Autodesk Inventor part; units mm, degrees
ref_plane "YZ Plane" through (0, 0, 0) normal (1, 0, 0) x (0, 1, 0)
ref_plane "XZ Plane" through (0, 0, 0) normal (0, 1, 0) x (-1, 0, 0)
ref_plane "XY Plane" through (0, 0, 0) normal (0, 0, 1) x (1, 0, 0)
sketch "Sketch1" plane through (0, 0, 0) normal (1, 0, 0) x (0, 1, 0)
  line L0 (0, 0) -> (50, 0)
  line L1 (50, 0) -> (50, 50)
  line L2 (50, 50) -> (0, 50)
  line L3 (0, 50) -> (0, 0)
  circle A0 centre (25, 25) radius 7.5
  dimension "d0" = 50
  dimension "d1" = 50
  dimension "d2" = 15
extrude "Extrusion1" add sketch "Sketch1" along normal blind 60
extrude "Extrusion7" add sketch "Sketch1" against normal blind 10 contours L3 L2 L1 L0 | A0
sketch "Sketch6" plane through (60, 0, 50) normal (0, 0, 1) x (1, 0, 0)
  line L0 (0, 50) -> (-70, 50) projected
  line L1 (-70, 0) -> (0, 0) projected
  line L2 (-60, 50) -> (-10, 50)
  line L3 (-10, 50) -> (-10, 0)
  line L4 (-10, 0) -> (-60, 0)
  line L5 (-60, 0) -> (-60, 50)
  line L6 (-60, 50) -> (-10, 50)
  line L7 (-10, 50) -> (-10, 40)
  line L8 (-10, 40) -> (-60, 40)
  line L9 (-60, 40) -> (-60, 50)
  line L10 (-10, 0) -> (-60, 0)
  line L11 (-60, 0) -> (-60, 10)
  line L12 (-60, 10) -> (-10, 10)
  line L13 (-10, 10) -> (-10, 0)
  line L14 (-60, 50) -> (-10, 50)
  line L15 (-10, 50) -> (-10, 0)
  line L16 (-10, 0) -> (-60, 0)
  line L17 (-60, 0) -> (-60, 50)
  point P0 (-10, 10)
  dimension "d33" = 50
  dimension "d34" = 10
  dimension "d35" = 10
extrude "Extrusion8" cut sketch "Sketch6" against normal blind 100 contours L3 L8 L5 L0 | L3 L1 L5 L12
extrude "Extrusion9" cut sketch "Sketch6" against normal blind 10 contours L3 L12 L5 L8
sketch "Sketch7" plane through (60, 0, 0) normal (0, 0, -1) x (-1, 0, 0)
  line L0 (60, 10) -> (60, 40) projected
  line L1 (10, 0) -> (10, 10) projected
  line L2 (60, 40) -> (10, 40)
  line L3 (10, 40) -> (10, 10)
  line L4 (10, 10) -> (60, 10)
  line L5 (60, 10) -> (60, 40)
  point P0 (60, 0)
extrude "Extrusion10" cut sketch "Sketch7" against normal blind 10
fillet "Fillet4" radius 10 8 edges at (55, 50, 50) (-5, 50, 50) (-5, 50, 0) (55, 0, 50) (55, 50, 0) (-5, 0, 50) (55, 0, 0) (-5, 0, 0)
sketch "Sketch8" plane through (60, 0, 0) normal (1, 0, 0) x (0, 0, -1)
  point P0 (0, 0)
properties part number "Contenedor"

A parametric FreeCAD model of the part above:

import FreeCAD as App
import Part
import Sketcher
Q = App.Units.Quantity


def edges_at(feature, points):
    """Names of the edges that pass closest to the given points."""
    edges = feature.Shape.Edges
    near = lambda p: min(range(len(edges)), key=lambda i: edges[i].distToShape(Part.Vertex(*p))[0])
    return sorted({f"Edge{near(p) + 1}" for p in points})


def add_polygon(sketch, points):
    """Adds a closed chain of lines whose ends are joined by coincident constraints."""
    first, n = sketch.GeometryCount, len(points)
    for a, b in zip(points, points[1:] + points[:1]):
        sketch.addGeometry(Part.LineSegment(App.Vector(*a, 0), App.Vector(*b, 0)), False)
    for i in range(n):
        sketch.addConstraint(Sketcher.Constraint("Coincident", first + i, 2, first + (i + 1) % n, 1))

doc = App.newDocument("Part")
params = doc.addObject("Spreadsheet::Sheet", "Params")
for row, (alias, value) in enumerate([
    ("sketch1_diameter", "15 mm"),
    ("sketch1_width", "50 mm"),
    ("pad1_length", "60 mm"),
    ("sketch2_width", "50 mm"),
    ("pad2_length", "10 mm"),
    ("sketch3_width", "50 mm"),
    ("sketch3_height", "10 mm"),
    ("pocket1_length", "100 mm"),
    ("sketch4_width", "50 mm"),
    ("sketch4_height", "30 mm"),
    ("pocket2_length", "10 mm"),
    ("sketch5_width", "50 mm"),
    ("sketch5_height", "30 mm"),
    ("pocket3_length", "10 mm"),
    ("fillet_radius", "10 mm"),
], start=1):
    params.set(f"A{row}", alias)
    params.set(f"B{row}", "=" + value)
    params.setAlias(f"B{row}", alias)

body = doc.addObject("PartDesign::Body", "Body")

# Sketch on YZ plane
sketch1 = doc.addObject("Sketcher::SketchObject", "Sketch")
body.addObject(sketch1)
sketch1.AttachmentSupport = (doc.YZ_Plane, [""])
sketch1.MapMode = "FlatFace"
add_polygon(sketch1, [(0, 50), (0, 0), (50, 0), (50, 50)])  # lines 0-3
sketch1.addGeometry(Part.Circle(App.Vector(25, 25, 0), App.Vector(0, 0, 1), 7.5), False)  # 4
sketch1.addConstraint(Sketcher.Constraint("Vertical", 0))
sketch1.addConstraint(Sketcher.Constraint("Horizontal", 1))
sketch1.addConstraint(Sketcher.Constraint("Vertical", 2))
sketch1.addConstraint(Sketcher.Constraint("Horizontal", 3))
sketch1.addConstraint(Sketcher.Constraint("Coincident", 0, 2, -1, 1))
sketch1.addConstraint(Sketcher.Constraint("Equal", 3, 0))
sketch1.addConstraint(Sketcher.Constraint("Diameter", 4, Q("15 mm")))
sketch1.addConstraint(Sketcher.Constraint("DistanceX", 1, 1, 1, 2, Q("50 mm")))
sketch1.addConstraint(Sketcher.Constraint("DistanceX", -1, 1, 4, 3, Q("25 mm")))
sketch1.addConstraint(Sketcher.Constraint("DistanceY", -1, 1, 4, 3, Q("25 mm")))
sketch1.setExpression("Constraints[10]", "Params.sketch1_diameter")
sketch1.setExpression("Constraints[11]", "Params.sketch1_width")
pad1 = doc.addObject("PartDesign::Pad", "Pad")
body.addObject(pad1)
pad1.Profile = sketch1
pad1.setExpression("Length", "Params.pad1_length")

# Sketch on YZ plane
sketch2 = doc.addObject("Sketcher::SketchObject", "Sketch001")
body.addObject(sketch2)
sketch2.AttachmentSupport = (doc.YZ_Plane, [""])
sketch2.MapMode = "FlatFace"
add_polygon(sketch2, [(0, 50), (0, 0), (50, 0), (50, 50)])  # lines 0-3
sketch2.addConstraint(Sketcher.Constraint("Vertical", 0))
sketch2.addConstraint(Sketcher.Constraint("Horizontal", 1))
sketch2.addConstraint(Sketcher.Constraint("Vertical", 2))
sketch2.addConstraint(Sketcher.Constraint("Horizontal", 3))
sketch2.addConstraint(Sketcher.Constraint("Coincident", 0, 2, -1, 1))
sketch2.addConstraint(Sketcher.Constraint("Equal", 3, 0))
sketch2.addConstraint(Sketcher.Constraint("DistanceX", 1, 1, 1, 2, Q("50 mm")))
sketch2.setExpression("Constraints[10]", "Params.sketch2_width")
pad2 = doc.addObject("PartDesign::Pad", "Pad001")
body.addObject(pad2)
pad2.Profile = sketch2
pad2.setExpression("Length", "Params.pad2_length")
pad2.Reversed = True

# Sketch on XY plane
sketch3 = doc.addObject("Sketcher::SketchObject", "Sketch002")
body.addObject(sketch3)
sketch3.AttachmentSupport = (doc.XY_Plane, [""])
sketch3.MapMode = "FlatFace"
sketch3.AttachmentOffset = App.Placement(App.Vector(0, 0, 50), App.Rotation())
add_polygon(sketch3, [(50, 40), (50, 50), (0, 50), (0, 40)])  # lines 0-3
add_polygon(sketch3, [(50, 0), (50, 10), (0, 10), (0, 0)])  # lines 4-7
sketch3.addConstraint(Sketcher.Constraint("Vertical", 0))
sketch3.addConstraint(Sketcher.Constraint("Horizontal", 1))
sketch3.addConstraint(Sketcher.Constraint("Vertical", 2))
sketch3.addConstraint(Sketcher.Constraint("Horizontal", 3))
sketch3.addConstraint(Sketcher.Constraint("Vertical", 4))
sketch3.addConstraint(Sketcher.Constraint("Horizontal", 5))
sketch3.addConstraint(Sketcher.Constraint("Vertical", 6))
sketch3.addConstraint(Sketcher.Constraint("Horizontal", 7))
sketch3.addConstraint(Sketcher.Constraint("Coincident", 6, 2, -1, 1))
sketch3.addConstraint(Sketcher.Constraint("PointOnObject", 1, 2, -2))
sketch3.addConstraint(Sketcher.Constraint("Vertical", 3, 2, 4, 2))
sketch3.addConstraint(Sketcher.Constraint("Equal", 2, 4))
sketch3.addConstraint(Sketcher.Constraint("DistanceX", 1, 2, 1, 1, Q("50 mm")))
sketch3.addConstraint(Sketcher.Constraint("DistanceY", 0, 1, 0, 2, Q("10 mm")))
sketch3.addConstraint(Sketcher.Constraint("DistanceY", -1, 1, 0, 2, Q("50 mm")))
sketch3.setExpression("Constraints[20]", "Params.sketch3_width")
sketch3.setExpression("Constraints[21]", "Params.sketch3_height")
pocket1 = doc.addObject("PartDesign::Pocket", "Pocket")
body.addObject(pocket1)
pocket1.Profile = sketch3
pocket1.setExpression("Length", "Params.pocket1_length")

# Sketch on XY plane
sketch4 = doc.addObject("Sketcher::SketchObject", "Sketch003")
body.addObject(sketch4)
sketch4.AttachmentSupport = (doc.XY_Plane, [""])
sketch4.MapMode = "FlatFace"
sketch4.AttachmentOffset = App.Placement(App.Vector(0, 0, 50), App.Rotation())
add_polygon(sketch4, [(50, 10), (50, 40), (0, 40), (0, 10)])  # lines 0-3
sketch4.addConstraint(Sketcher.Constraint("Vertical", 0))
sketch4.addConstraint(Sketcher.Constraint("Horizontal", 1))
sketch4.addConstraint(Sketcher.Constraint("Vertical", 2))
sketch4.addConstraint(Sketcher.Constraint("Horizontal", 3))
sketch4.addConstraint(Sketcher.Constraint("PointOnObject", 1, 2, -2))
sketch4.addConstraint(Sketcher.Constraint("DistanceX", 1, 2, 1, 1, Q("50 mm")))
sketch4.addConstraint(Sketcher.Constraint("DistanceY", -1, 1, 2, 2, Q("10 mm")))
sketch4.addConstraint(Sketcher.Constraint("DistanceY", 0, 1, 0, 2, Q("30 mm")))
sketch4.setExpression("Constraints[9]", "Params.sketch4_width")
sketch4.setExpression("Constraints[11]", "Params.sketch4_height")
pocket2 = doc.addObject("PartDesign::Pocket", "Pocket001")
body.addObject(pocket2)
pocket2.Profile = sketch4
pocket2.setExpression("Length", "Params.pocket2_length")

# Sketch on XY plane
sketch5 = doc.addObject("Sketcher::SketchObject", "Sketch004")
body.addObject(sketch5)
sketch5.AttachmentSupport = (doc.XY_Plane, [""])
sketch5.MapMode = "FlatFace"
add_polygon(sketch5, [(50, 10), (0, 10), (0, 40), (50, 40)])  # lines 0-3
sketch5.addConstraint(Sketcher.Constraint("Horizontal", 0))
sketch5.addConstraint(Sketcher.Constraint("Vertical", 1))
sketch5.addConstraint(Sketcher.Constraint("Horizontal", 2))
sketch5.addConstraint(Sketcher.Constraint("Vertical", 3))
sketch5.addConstraint(Sketcher.Constraint("PointOnObject", 0, 2, -2))
sketch5.addConstraint(Sketcher.Constraint("DistanceX", 0, 2, 0, 1, Q("50 mm")))
sketch5.addConstraint(Sketcher.Constraint("DistanceY", 1, 1, 1, 2, Q("30 mm")))
sketch5.addConstraint(Sketcher.Constraint("DistanceY", -1, 1, 0, 2, Q("10 mm")))
sketch5.setExpression("Constraints[9]", "Params.sketch5_width")
sketch5.setExpression("Constraints[10]", "Params.sketch5_height")
pocket3 = doc.addObject("PartDesign::Pocket", "Pocket002")
body.addObject(pocket3)
pocket3.Profile = sketch5
pocket3.setExpression("Length", "Params.pocket3_length")
pocket3.Reversed = True
doc.recompute()

fillet = doc.addObject("PartDesign::Fillet", "Fillet")
body.addObject(fillet)
fillet.Base = (pocket3, edges_at(pocket3, [
    (55, 50, 50),
    (-5, 50, 50),
    (-5, 50, 0),
    (55, 0, 50),
    (55, 50, 0),
    (-5, 0, 50),
    (55, 0, 0),
    (-5, 0, 0),
]))
fillet.setExpression("Radius", "Params.fillet_radius")

doc.recompute()
